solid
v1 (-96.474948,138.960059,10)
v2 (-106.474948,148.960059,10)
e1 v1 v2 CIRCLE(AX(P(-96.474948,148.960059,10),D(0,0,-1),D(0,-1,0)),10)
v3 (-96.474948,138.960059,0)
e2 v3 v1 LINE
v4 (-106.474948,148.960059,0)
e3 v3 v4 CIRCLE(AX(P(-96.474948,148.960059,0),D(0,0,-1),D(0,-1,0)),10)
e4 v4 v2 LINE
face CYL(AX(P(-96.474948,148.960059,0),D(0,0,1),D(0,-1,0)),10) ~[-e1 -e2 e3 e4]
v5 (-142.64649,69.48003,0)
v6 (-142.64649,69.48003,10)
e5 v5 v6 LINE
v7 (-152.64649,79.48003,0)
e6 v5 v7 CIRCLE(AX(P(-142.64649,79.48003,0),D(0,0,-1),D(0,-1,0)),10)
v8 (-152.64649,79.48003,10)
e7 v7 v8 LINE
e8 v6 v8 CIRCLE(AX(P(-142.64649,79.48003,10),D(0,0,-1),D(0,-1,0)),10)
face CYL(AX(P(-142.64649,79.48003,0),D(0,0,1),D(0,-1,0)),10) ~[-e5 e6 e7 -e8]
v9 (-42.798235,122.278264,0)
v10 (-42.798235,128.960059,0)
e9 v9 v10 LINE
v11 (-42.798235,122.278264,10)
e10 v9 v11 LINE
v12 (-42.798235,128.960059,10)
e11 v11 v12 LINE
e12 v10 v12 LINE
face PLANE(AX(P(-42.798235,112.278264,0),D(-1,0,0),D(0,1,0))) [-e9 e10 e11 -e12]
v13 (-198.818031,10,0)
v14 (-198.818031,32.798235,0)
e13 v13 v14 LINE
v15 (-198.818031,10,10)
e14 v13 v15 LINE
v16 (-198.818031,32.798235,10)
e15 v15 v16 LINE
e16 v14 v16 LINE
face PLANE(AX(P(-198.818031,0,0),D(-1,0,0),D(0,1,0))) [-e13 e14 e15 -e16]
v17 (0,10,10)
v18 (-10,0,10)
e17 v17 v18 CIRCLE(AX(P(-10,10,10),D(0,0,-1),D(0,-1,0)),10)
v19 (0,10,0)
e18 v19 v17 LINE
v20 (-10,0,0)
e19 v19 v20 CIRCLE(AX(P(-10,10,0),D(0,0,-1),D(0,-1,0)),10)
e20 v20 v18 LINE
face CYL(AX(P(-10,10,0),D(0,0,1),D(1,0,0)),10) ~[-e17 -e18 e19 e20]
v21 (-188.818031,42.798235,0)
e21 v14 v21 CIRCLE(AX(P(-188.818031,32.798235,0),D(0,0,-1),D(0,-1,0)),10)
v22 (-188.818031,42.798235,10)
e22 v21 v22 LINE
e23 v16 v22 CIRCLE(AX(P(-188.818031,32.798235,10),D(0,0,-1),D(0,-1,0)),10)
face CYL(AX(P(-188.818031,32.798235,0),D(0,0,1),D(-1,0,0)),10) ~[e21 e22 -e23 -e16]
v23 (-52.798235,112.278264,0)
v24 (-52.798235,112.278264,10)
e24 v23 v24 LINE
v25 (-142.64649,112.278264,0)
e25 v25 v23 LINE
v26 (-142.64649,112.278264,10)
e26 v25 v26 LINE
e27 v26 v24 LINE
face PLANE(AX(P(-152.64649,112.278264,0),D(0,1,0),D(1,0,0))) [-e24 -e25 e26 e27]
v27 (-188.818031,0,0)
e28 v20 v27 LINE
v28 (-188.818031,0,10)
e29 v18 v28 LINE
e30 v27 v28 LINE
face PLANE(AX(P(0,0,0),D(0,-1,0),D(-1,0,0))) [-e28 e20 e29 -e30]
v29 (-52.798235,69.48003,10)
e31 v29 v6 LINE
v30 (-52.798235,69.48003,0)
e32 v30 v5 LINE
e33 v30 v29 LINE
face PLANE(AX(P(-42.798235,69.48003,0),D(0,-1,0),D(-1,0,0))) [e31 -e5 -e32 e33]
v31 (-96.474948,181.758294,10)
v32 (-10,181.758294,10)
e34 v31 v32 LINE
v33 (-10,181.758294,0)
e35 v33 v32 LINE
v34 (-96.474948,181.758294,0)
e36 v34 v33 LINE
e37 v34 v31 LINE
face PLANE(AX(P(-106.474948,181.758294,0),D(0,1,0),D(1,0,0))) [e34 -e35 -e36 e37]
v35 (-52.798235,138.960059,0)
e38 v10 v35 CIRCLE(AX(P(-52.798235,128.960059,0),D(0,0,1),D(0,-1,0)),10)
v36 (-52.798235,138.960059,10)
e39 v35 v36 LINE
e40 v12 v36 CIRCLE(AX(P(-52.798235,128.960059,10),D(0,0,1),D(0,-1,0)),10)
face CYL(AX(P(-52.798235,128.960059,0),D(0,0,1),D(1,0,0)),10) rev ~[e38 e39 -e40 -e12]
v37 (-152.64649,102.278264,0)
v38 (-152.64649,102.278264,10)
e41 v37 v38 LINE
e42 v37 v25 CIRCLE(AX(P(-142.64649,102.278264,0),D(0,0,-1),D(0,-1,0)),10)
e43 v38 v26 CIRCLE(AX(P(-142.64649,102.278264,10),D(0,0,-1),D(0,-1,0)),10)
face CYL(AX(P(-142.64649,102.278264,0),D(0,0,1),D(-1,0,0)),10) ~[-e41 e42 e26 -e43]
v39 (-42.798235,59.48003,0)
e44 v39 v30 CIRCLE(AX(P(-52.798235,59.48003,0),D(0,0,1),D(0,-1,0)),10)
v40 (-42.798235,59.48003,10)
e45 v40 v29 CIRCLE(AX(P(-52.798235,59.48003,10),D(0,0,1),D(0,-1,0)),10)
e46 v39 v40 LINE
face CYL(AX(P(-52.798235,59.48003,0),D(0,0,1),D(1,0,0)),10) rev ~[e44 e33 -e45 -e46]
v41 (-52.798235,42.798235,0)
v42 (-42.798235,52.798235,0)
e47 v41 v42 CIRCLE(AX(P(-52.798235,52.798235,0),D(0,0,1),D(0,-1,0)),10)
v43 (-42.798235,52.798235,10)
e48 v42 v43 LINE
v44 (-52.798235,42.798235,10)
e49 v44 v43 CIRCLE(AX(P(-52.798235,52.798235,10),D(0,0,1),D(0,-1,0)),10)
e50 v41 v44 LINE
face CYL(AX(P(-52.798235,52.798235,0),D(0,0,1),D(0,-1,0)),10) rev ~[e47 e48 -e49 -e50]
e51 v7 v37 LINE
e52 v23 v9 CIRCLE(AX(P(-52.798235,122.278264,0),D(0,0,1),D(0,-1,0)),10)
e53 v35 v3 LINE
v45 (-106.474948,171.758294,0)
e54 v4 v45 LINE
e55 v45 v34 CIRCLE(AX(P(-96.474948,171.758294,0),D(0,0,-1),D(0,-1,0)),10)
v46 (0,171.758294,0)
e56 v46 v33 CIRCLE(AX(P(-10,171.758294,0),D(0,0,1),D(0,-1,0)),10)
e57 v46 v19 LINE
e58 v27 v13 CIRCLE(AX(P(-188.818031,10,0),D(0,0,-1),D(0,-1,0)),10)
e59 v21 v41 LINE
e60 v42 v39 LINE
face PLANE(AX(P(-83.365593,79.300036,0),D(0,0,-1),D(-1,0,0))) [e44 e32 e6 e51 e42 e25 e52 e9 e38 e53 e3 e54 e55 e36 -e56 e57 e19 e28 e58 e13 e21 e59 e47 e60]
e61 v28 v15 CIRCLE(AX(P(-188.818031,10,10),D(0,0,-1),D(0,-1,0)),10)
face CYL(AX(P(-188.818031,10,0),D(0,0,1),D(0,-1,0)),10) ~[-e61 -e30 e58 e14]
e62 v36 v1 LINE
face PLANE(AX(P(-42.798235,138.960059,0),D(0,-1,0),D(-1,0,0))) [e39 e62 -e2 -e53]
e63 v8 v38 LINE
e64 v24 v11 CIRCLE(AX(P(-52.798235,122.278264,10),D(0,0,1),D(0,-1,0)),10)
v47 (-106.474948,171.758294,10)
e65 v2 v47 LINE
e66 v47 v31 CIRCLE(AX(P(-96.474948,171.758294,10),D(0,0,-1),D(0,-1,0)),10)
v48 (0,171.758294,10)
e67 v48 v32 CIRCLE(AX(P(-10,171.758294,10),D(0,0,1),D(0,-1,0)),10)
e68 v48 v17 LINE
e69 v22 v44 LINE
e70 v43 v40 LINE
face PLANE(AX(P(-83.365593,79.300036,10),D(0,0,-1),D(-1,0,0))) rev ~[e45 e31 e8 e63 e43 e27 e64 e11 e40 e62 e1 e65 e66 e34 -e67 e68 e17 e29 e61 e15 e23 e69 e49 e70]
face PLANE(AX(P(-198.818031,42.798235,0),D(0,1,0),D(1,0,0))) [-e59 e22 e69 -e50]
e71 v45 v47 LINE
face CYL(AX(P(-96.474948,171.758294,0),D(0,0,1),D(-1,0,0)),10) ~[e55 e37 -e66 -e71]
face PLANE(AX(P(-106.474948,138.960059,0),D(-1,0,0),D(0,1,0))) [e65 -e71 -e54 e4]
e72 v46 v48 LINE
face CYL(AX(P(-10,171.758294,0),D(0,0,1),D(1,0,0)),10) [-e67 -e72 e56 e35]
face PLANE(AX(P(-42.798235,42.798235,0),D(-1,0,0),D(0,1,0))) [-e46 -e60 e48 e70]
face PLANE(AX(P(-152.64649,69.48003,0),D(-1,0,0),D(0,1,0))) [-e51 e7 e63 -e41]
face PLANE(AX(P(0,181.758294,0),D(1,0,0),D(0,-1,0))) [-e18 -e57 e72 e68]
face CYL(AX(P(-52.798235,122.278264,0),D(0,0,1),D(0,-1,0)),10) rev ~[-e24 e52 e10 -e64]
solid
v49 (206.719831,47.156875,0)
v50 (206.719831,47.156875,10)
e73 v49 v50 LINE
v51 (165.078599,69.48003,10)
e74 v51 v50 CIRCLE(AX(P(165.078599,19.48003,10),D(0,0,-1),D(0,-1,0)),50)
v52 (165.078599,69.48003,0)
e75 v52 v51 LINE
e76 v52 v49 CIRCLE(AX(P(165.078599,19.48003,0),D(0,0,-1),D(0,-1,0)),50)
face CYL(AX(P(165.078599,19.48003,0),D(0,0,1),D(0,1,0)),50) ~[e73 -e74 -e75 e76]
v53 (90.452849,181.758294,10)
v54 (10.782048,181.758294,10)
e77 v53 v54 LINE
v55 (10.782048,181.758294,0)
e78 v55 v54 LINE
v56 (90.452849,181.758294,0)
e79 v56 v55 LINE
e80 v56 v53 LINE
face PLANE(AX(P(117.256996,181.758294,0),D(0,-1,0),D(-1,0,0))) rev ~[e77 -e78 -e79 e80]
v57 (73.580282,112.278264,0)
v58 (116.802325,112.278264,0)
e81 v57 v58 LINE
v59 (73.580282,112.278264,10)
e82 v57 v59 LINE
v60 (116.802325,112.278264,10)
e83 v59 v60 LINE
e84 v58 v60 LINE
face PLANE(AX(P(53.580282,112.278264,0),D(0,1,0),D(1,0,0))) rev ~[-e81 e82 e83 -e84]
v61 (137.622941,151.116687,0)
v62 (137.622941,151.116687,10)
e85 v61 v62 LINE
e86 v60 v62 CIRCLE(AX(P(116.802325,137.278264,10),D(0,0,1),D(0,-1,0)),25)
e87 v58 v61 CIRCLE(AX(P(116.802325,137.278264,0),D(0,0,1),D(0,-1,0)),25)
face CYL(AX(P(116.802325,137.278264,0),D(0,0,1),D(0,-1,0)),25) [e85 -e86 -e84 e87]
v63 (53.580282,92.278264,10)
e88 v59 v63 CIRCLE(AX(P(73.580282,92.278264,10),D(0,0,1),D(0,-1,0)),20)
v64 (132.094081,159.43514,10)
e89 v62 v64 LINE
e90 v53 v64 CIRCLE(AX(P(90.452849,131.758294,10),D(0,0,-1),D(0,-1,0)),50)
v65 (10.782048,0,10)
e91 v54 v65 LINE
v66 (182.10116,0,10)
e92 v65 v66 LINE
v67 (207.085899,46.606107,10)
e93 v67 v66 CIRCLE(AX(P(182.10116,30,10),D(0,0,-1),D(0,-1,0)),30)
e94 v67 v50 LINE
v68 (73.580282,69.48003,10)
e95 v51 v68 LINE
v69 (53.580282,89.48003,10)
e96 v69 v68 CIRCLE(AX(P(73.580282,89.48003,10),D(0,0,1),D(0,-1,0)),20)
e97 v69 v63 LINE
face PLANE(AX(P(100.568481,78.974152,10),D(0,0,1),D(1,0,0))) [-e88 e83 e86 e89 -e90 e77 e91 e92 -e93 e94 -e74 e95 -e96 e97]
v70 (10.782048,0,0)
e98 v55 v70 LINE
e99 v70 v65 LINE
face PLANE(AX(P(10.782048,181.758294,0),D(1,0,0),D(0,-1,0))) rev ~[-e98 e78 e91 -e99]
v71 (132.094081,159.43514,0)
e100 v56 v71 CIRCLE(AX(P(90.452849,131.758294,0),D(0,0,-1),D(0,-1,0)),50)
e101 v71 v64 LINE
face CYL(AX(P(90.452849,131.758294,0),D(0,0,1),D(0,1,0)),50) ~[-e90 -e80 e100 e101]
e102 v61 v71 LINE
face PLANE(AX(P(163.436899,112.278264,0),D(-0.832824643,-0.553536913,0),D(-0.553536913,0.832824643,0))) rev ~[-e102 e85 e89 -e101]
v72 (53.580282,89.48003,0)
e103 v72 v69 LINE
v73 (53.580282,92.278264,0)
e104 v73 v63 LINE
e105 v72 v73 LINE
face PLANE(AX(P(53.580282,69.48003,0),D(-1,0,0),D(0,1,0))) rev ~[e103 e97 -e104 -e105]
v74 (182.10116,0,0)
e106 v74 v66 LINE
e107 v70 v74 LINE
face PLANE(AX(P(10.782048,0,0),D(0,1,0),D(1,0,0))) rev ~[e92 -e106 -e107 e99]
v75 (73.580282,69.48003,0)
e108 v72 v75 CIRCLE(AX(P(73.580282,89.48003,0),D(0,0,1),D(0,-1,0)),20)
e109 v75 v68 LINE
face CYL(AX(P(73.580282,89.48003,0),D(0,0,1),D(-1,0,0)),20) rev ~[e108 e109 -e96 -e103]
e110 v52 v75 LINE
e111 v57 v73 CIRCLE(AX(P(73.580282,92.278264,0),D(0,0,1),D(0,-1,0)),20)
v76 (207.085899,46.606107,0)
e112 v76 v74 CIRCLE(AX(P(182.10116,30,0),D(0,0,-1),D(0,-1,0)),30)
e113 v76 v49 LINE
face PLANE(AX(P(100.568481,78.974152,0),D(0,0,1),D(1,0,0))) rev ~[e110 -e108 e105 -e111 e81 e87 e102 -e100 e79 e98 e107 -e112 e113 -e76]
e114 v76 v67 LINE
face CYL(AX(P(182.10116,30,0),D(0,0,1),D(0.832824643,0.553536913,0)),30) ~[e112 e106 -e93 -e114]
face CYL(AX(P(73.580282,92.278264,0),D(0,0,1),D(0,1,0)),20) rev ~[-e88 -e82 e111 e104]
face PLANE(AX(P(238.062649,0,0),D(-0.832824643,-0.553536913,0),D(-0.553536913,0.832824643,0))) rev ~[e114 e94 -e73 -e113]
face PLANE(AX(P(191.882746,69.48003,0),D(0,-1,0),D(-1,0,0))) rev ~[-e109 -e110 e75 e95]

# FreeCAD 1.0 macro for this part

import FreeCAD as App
import Part
import Sketcher
Q = App.Units.Quantity


def edges_at(feature, points):
    """Names of the edges that pass closest to the given points."""
    edges = feature.Shape.Edges
    near = lambda p: min(range(len(edges)), key=lambda i: edges[i].distToShape(Part.Vertex(*p))[0])
    return sorted({f"Edge{near(p) + 1}" for p in points})

doc = App.newDocument("Part")
body = doc.addObject("PartDesign::Body", "Body")

# Sketch on XY plane
sketch1 = doc.addObject("Sketcher::SketchObject", "Sketch")
body.addObject(sketch1)
sketch1.AttachmentSupport = (doc.XY_Plane, [""])
sketch1.MapMode = "FlatFace"
sketch1.addGeometry([
    Part.LineSegment(App.Vector(0, 0, 0), App.Vector(0, 181.758294, 0)),  # 0
    Part.LineSegment(App.Vector(0, 181.758294, 0), App.Vector(-106.474948, 181.758294, 0)),  # 1
    Part.LineSegment(App.Vector(-106.474948, 181.758294, 0), App.Vector(-106.474948, 138.960059, 0)),  # 2
    Part.LineSegment(App.Vector(-106.474948, 138.960059, 0), App.Vector(-42.798235, 138.960059, 0)),  # 3
    Part.LineSegment(App.Vector(-42.798235, 138.960059, 0), App.Vector(-42.798235, 112.278264, 0)),  # 4
    Part.LineSegment(App.Vector(-42.798235, 112.278264, 0), App.Vector(-152.64649, 112.278264, 0)),  # 5
    Part.LineSegment(App.Vector(-152.64649, 112.278264, 0), App.Vector(-152.64649, 69.48003, 0)),  # 6
    Part.LineSegment(App.Vector(-152.64649, 69.48003, 0), App.Vector(-42.798235, 69.48003, 0)),  # 7
    Part.LineSegment(App.Vector(-42.798235, 69.48003, 0), App.Vector(-42.798235, 42.798235, 0)),  # 8
    Part.LineSegment(App.Vector(-42.798235, 42.798235, 0), App.Vector(-198.818031, 42.798235, 0)),  # 9
    Part.LineSegment(App.Vector(-198.818031, 42.798235, 0), App.Vector(-198.818031, 0, 0)),  # 10
    Part.LineSegment(App.Vector(-198.818031, 0, 0), App.Vector(0, 0, 0)),  # 11
], False)
sketch1.addConstraint([
    Sketcher.Constraint("Coincident", 0, 2, 1, 1),
    Sketcher.Constraint("Coincident", 1, 2, 2, 1),
    Sketcher.Constraint("Coincident", 2, 2, 3, 1),
    Sketcher.Constraint("Coincident", 3, 2, 4, 1),
    Sketcher.Constraint("Coincident", 4, 2, 5, 1),
    Sketcher.Constraint("Coincident", 5, 2, 6, 1),
    Sketcher.Constraint("Coincident", 6, 2, 7, 1),
    Sketcher.Constraint("Coincident", 7, 2, 8, 1),
    Sketcher.Constraint("Coincident", 8, 2, 9, 1),
    Sketcher.Constraint("Coincident", 9, 2, 10, 1),
    Sketcher.Constraint("Coincident", 10, 2, 11, 1),
    Sketcher.Constraint("Coincident", 11, 2, 0, 1),
    Sketcher.Constraint("Vertical", 0),
    Sketcher.Constraint("Horizontal", 1),
    Sketcher.Constraint("Vertical", 2),
    Sketcher.Constraint("Horizontal", 3),
    Sketcher.Constraint("Vertical", 4),
    Sketcher.Constraint("Horizontal", 5),
    Sketcher.Constraint("Vertical", 6),
    Sketcher.Constraint("Horizontal", 7),
    Sketcher.Constraint("Vertical", 8),
    Sketcher.Constraint("Horizontal", 9),
    Sketcher.Constraint("Vertical", 10),
    Sketcher.Constraint("Horizontal", 11),
    Sketcher.Constraint("Coincident", 11, 2, -1, 1),
    Sketcher.Constraint("Vertical", 4, 2, 7, 2),
    Sketcher.Constraint("Equal", 2, 6),
    Sketcher.Constraint("Equal", 4, 8),
    Sketcher.Constraint("Equal", 6, 10),
    Sketcher.Constraint("DistanceX", 1, 2, 1, 1, 106.474948),
    Sketcher.Constraint("DistanceX", 11, 1, 11, 2, 198.818031),
    Sketcher.Constraint("DistanceX", 3, 1, 3, 2, 63.676714),
    Sketcher.Constraint("DistanceX", 5, 2, 5, 1, 109.848255),
    Sketcher.Constraint("DistanceY", 0, 1, 0, 2, 181.758294),
    Sketcher.Constraint("DistanceY", 2, 2, 2, 1, 42.798235),
])
pad1 = doc.addObject("PartDesign::Pad", "Pad")
body.addObject(pad1)
pad1.Profile = sketch1
pad1.Length = 10
doc.recompute()

fillet = doc.addObject("PartDesign::Fillet", "Fillet")
body.addObject(fillet)
fillet.Base = (pad1, edges_at(pad1, [
    (0, 181.758, 5),
    (0, 0, 5),
    (-198.818, 0, 5),
    (-198.818, 42.798, 5),
    (-42.798, 42.798, 5),
    (-42.798, 69.48, 5),
    (-152.646, 69.48, 5),
    (-152.646, 112.278, 5),
    (-42.798, 112.278, 5),
    (-42.798, 138.96, 5),
    (-106.475, 138.96, 5),
    (-106.475, 181.758, 5),
]))
fillet.Radius = 10
body2 = doc.addObject("PartDesign::Body", "Body001")

# Sketch on XY plane
sketch2 = doc.addObject("Sketcher::SketchObject", "Sketch001")
body2.addObject(sketch2)
sketch2.AttachmentSupport = (doc.getObject("XY_Plane001"), [""])
sketch2.MapMode = "FlatFace"
sketch2.addGeometry([
    Part.LineSegment(App.Vector(10.782048, 181.758294, 0), App.Vector(10.782048, 0, 0)),  # 0
    Part.LineSegment(App.Vector(10.782048, 0, 0), App.Vector(238.062649, 0, 0)),  # 1
    Part.LineSegment(App.Vector(238.062649, 0, 0), App.Vector(191.882746, 69.48003, 0)),  # 2
    Part.LineSegment(App.Vector(191.882746, 69.48003, 0), App.Vector(53.580282, 69.48003, 0)),  # 3
    Part.LineSegment(App.Vector(53.580282, 69.48003, 0), App.Vector(53.580282, 112.278264, 0)),  # 4
    Part.LineSegment(App.Vector(53.580282, 112.278264, 0), App.Vector(163.436899, 112.278264, 0)),  # 5
    Part.LineSegment(App.Vector(163.436899, 112.278264, 0), App.Vector(117.256996, 181.758294, 0)),  # 6
    Part.LineSegment(App.Vector(117.256996, 181.758294, 0), App.Vector(10.782048, 181.758294, 0)),  # 7
], False)
sketch2.addConstraint([
    Sketcher.Constraint("Coincident", 0, 2, 1, 1),
    Sketcher.Constraint("Coincident", 1, 2, 2, 1),
    Sketcher.Constraint("Coincident", 2, 2, 3, 1),
    Sketcher.Constraint("Coincident", 3, 2, 4, 1),
    Sketcher.Constraint("Coincident", 4, 2, 5, 1),
    Sketcher.Constraint("Coincident", 5, 2, 6, 1),
    Sketcher.Constraint("Coincident", 6, 2, 7, 1),
    Sketcher.Constraint("Coincident", 7, 2, 0, 1),
    Sketcher.Constraint("Vertical", 0),
    Sketcher.Constraint("Horizontal", 1),
    Sketcher.Constraint("Horizontal", 3),
    Sketcher.Constraint("Vertical", 4),
    Sketcher.Constraint("Horizontal", 5),
    Sketcher.Constraint("Horizontal", 7),
    Sketcher.Constraint("PointOnObject", 0, 2, -1),
    Sketcher.Constraint("Parallel", 2, 6),
    Sketcher.Constraint("Equal", 2, 6),
    Sketcher.Constraint("Angle", 2, Q("123.61 deg")),
    Sketcher.Constraint("DistanceX", 1, 1, 1, 2, 227.280602),
    Sketcher.Constraint("DistanceX", 7, 2, 7, 1, 106.474948),
    Sketcher.Constraint("DistanceX", -1, 1, 5, 2, 163.436899),
    Sketcher.Constraint("DistanceX", 0, 2, 2, 2, 181.100699),
    Sketcher.Constraint("DistanceX", 3, 2, 3, 1, 138.302464),
    Sketcher.Constraint("DistanceY", 0, 2, 0, 1, 181.758294),
])
pad2 = doc.addObject("PartDesign::Pad", "Pad001")
body2.addObject(pad2)
pad2.Profile = sketch2
pad2.Length = 10
doc.recompute()

fillet2 = doc.addObject("PartDesign::Fillet", "Fillet001")
body2.addObject(fillet2)
fillet2.Base = (pad2, edges_at(pad2, [(163.437, 112.278, 5)]))
fillet2.Radius = 25
doc.recompute()

fillet3 = doc.addObject("PartDesign::Fillet", "Fillet002")
body2.addObject(fillet3)
fillet3.Base = (fillet2, edges_at(fillet2, [(191.883, 69.48, 5)]))
fillet3.Radius = 50
doc.recompute()

fillet4 = doc.addObject("PartDesign::Fillet", "Fillet003")
body2.addObject(fillet4)
fillet4.Base = (fillet3, edges_at(fillet3, [(238.063, 0, 5)]))
fillet4.Radius = 30
doc.recompute()

fillet5 = doc.addObject("PartDesign::Fillet", "Fillet004")
body2.addObject(fillet5)
fillet5.Base = (fillet4, edges_at(fillet4, [(117.257, 181.758, 5)]))
fillet5.Radius = 50
doc.recompute()

fillet6 = doc.addObject("PartDesign::Fillet", "Fillet005")
body2.addObject(fillet6)
fillet6.Base = (fillet5, edges_at(fillet5, [(53.58, 112.278, 5), (53.58, 69.48, 5)]))
fillet6.Radius = 20

doc.recompute()
